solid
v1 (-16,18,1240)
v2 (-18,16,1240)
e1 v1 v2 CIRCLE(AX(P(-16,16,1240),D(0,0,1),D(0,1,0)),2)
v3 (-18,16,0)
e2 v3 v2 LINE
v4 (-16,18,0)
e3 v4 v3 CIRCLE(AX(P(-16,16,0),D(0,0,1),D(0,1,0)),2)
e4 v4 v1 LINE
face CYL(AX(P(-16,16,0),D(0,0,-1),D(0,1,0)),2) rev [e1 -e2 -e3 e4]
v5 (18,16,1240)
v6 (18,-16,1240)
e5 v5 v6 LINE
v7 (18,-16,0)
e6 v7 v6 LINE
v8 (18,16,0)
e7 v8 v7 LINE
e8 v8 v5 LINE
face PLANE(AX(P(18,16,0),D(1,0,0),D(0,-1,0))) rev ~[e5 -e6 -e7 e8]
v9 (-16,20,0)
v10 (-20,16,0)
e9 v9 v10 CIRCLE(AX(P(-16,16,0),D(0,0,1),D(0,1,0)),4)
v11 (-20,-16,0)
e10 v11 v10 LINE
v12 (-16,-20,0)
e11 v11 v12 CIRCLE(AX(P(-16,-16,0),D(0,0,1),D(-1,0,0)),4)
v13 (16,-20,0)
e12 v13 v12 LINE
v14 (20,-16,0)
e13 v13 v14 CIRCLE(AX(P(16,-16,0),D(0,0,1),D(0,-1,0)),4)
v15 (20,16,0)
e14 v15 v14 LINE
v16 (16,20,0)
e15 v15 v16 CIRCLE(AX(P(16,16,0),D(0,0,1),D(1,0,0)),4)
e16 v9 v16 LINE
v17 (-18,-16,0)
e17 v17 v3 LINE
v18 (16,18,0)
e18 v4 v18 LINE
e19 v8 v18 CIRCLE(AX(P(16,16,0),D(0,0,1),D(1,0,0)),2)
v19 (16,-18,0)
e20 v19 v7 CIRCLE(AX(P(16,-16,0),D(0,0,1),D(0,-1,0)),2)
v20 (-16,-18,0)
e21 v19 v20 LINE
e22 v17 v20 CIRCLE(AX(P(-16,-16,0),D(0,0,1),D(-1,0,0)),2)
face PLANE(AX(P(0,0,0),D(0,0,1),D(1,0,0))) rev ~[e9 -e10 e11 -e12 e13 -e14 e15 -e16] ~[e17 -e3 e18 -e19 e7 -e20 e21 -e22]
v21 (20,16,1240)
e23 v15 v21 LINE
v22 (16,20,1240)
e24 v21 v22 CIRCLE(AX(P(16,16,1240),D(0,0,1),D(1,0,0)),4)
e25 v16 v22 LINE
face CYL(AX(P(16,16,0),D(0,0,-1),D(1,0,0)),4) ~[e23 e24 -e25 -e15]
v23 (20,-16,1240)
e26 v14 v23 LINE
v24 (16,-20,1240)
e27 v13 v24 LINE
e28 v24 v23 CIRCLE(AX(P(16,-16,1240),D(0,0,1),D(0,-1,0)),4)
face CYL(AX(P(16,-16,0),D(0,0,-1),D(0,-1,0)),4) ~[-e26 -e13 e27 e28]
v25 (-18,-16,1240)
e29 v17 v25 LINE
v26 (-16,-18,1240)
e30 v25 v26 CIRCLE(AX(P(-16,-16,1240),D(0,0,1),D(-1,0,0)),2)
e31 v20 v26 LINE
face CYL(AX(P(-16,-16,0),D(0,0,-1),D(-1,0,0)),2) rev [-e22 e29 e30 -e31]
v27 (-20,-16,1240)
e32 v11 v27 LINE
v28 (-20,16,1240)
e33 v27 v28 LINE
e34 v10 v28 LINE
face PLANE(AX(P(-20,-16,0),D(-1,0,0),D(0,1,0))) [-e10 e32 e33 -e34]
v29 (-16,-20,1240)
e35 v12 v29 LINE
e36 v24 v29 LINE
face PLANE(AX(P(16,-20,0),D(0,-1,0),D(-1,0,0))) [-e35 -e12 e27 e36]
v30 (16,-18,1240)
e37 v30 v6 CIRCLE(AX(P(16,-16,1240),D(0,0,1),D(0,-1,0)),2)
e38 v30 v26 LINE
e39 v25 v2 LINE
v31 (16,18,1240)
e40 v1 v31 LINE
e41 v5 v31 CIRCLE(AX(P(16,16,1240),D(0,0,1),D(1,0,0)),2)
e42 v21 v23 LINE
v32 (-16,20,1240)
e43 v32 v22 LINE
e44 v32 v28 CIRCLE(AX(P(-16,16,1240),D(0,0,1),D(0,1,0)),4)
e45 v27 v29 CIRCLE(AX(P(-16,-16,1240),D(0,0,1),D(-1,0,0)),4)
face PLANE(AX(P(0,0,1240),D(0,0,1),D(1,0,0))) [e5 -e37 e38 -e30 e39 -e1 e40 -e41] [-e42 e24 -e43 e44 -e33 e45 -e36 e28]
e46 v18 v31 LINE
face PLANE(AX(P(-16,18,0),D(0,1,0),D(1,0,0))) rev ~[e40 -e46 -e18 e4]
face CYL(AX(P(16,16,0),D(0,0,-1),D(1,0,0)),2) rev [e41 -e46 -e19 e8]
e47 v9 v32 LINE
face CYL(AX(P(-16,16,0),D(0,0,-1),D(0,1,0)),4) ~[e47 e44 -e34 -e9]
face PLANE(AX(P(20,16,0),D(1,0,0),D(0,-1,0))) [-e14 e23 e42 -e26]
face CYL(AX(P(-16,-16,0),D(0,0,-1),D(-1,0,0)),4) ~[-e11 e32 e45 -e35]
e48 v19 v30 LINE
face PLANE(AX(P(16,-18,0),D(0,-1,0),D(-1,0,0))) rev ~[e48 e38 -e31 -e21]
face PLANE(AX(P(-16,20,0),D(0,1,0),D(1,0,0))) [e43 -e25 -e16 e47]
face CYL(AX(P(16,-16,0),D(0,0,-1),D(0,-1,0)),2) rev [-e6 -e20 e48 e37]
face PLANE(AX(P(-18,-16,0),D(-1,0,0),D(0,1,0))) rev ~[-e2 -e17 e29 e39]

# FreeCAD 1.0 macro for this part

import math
import FreeCAD as App
import Part
import Sketcher

V = App.Vector
Q = App.Units.Quantity

doc = App.newDocument("Part")
params = doc.addObject("Spreadsheet::Sheet", "Params")
for row, (alias, value) in enumerate([
    ("sketch1_radius", "4 mm"),
    ("sketch1_radius2", "2 mm"),
    ("pad1_length", "1240 mm"),
], start=1):
    params.set(f"A{row}", alias)
    params.set(f"B{row}", "=" + value)
    params.setAlias(f"B{row}", alias)

body = doc.addObject("PartDesign::Body", "Body")

# Sketch on XY plane
sketch1 = body.newObject("Sketcher::SketchObject", "Sketch")
sketch1.AttachmentSupport = (doc.getObject("XY_Plane"), [""])
sketch1.MapMode = "FlatFace"
sketch1.addGeometry([
    Part.LineSegment(V(-20, 16, 0), V(-20, -16, 0)),  # 0
    Part.ArcOfCircle(Part.Circle(V(-16, -16, 0), V(0, 0, 1), 4), math.radians(180), math.radians(270)),  # 1
    Part.LineSegment(V(-16, -20, 0), V(16, -20, 0)),  # 2
    Part.ArcOfCircle(Part.Circle(V(16, -16, 0), V(0, 0, 1), 4), math.radians(-90), math.radians(0)),  # 3
    Part.LineSegment(V(20, -16, 0), V(20, 16, 0)),  # 4
    Part.ArcOfCircle(Part.Circle(V(16, 16, 0), V(0, 0, 1), 4), math.radians(0), math.radians(90)),  # 5
    Part.LineSegment(V(16, 20, 0), V(-16, 20, 0)),  # 6
    Part.ArcOfCircle(Part.Circle(V(-16, 16, 0), V(0, 0, 1), 4), math.radians(90), math.radians(180)),  # 7
    Part.ArcOfCircle(Part.Circle(V(-16, 16, 0), V(0, 0, 1), 2), math.radians(90), math.radians(180)),  # 8
    Part.LineSegment(V(-16, 18, 0), V(16, 18, 0)),  # 9
    Part.ArcOfCircle(Part.Circle(V(16, 16, 0), V(0, 0, 1), 2), math.radians(0), math.radians(90)),  # 10
    Part.LineSegment(V(18, 16, 0), V(18, -16, 0)),  # 11
    Part.ArcOfCircle(Part.Circle(V(16, -16, 0), V(0, 0, 1), 2), math.radians(-90), math.radians(0)),  # 12
    Part.LineSegment(V(16, -18, 0), V(-16, -18, 0)),  # 13
    Part.ArcOfCircle(Part.Circle(V(-16, -16, 0), V(0, 0, 1), 2), math.radians(180), math.radians(270)),  # 14
    Part.LineSegment(V(-18, -16, 0), V(-18, 16, 0)),  # 15
], False)
sketch1.addConstraint([
    Sketcher.Constraint("Tangent", 0, 2, 1, 1),
    Sketcher.Constraint("Tangent", 1, 2, 2, 1),
    Sketcher.Constraint("Tangent", 2, 2, 3, 1),
    Sketcher.Constraint("Tangent", 3, 2, 4, 1),
    Sketcher.Constraint("Tangent", 4, 2, 5, 1),
    Sketcher.Constraint("Tangent", 5, 2, 6, 1),
    Sketcher.Constraint("Tangent", 6, 2, 7, 1),
    Sketcher.Constraint("Tangent", 7, 2, 0, 1),
    Sketcher.Constraint("Tangent", 8, 1, 9, 1),
    Sketcher.Constraint("Tangent", 9, 2, 10, 2),
    Sketcher.Constraint("Tangent", 10, 1, 11, 1),
    Sketcher.Constraint("Tangent", 11, 2, 12, 2),
    Sketcher.Constraint("Tangent", 12, 1, 13, 1),
    Sketcher.Constraint("Tangent", 13, 2, 14, 2),
    Sketcher.Constraint("Tangent", 14, 1, 15, 1),
    Sketcher.Constraint("Tangent", 15, 2, 8, 2),
    Sketcher.Constraint("Vertical", 0),
    Sketcher.Constraint("Horizontal", 2),
    Sketcher.Constraint("Vertical", 4),
    Sketcher.Constraint("Horizontal", 6),
    Sketcher.Constraint("Horizontal", 9),
    Sketcher.Constraint("Vertical", 11),
    Sketcher.Constraint("Horizontal", 13),
    Sketcher.Constraint("Vertical", 15),
    Sketcher.Constraint("Coincident", 8, 3, 7, 3),
    Sketcher.Constraint("Coincident", 10, 3, 5, 3),
    Sketcher.Constraint("Coincident", 12, 3, 3, 3),
    Sketcher.Constraint("Equal", 1, 3),
    Sketcher.Constraint("Equal", 3, 5),
    Sketcher.Constraint("Equal", 5, 7),
    Sketcher.Constraint("Equal", 12, 14),
    Sketcher.Constraint("Symmetric", 1, 3, 5, 3, -1, 1),
    Sketcher.Constraint("Equal", 13, 0),
    Sketcher.Constraint("Radius", 1, Q("4 mm")),
    Sketcher.Constraint("Radius", 8, Q("2 mm")),
    Sketcher.Constraint("DistanceX", 0, 2, -1, 1, Q("20 mm")),
])
sketch1.setExpression("Constraints[33]", "Params.sketch1_radius")
sketch1.setExpression("Constraints[34]", "Params.sketch1_radius2")
pad1 = body.newObject("PartDesign::Pad", "Pad")
pad1.Profile = sketch1
pad1.setExpression("Length", "Params.pad1_length")

doc.recompute()
